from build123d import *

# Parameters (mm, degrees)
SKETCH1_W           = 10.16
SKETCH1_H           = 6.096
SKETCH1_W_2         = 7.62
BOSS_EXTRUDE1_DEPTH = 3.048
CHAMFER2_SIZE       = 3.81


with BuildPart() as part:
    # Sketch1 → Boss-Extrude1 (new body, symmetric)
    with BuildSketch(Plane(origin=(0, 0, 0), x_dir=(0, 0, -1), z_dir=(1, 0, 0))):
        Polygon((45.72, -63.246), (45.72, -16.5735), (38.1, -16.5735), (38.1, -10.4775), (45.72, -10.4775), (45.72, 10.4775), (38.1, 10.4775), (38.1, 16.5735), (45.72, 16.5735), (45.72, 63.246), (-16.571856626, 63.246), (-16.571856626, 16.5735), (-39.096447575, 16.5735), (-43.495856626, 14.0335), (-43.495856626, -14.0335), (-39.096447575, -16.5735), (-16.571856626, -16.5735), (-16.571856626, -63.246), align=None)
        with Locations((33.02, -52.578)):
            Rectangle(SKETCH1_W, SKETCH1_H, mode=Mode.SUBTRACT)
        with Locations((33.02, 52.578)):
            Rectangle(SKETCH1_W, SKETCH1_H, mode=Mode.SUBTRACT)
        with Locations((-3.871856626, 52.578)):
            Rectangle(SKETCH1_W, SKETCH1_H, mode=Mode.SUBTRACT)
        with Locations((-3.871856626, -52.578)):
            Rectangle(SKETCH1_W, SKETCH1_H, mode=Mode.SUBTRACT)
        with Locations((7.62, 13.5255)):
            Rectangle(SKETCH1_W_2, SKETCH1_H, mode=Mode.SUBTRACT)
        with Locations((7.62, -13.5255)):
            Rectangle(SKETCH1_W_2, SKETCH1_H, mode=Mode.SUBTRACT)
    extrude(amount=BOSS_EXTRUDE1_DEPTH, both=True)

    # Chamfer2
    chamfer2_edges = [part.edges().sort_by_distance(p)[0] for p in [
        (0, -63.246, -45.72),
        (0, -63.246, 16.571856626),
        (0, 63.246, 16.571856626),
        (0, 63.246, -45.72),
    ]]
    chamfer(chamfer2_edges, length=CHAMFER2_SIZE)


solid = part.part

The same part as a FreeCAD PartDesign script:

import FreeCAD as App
import Part
import Sketcher

V = App.Vector
Q = App.Units.Quantity


def edges_at(feature, points):
    """Names of the edges that pass closest to the given points."""
    edges = feature.Shape.Edges
    near = lambda p: min(range(len(edges)), key=lambda i: edges[i].distToShape(Part.Vertex(*p))[0])
    return sorted({f"Edge{near(p) + 1}" for p in points})

doc = App.newDocument("Part")
body = doc.addObject("PartDesign::Body", "Body")

# Sketch on YZ plane
sketch1 = body.newObject("Sketcher::SketchObject", "Sketch")
sketch1.AttachmentSupport = (doc.getObject("YZ_Plane"), [""])
sketch1.MapMode = "FlatFace"
sketch1.addGeometry([
    Part.LineSegment(V(-63.246, -45.72, 0), V(-16.5735, -45.72, 0)),  # 0
    Part.LineSegment(V(-16.5735, -45.72, 0), V(-16.5735, -38.1, 0)),  # 1
    Part.LineSegment(V(-16.5735, -38.1, 0), V(-10.4775, -38.1, 0)),  # 2
    Part.LineSegment(V(-10.4775, -38.1, 0), V(-10.4775, -45.72, 0)),  # 3
    Part.LineSegment(V(-10.4775, -45.72, 0), V(10.4775, -45.72, 0)),  # 4
    Part.LineSegment(V(10.4775, -45.72, 0), V(10.4775, -38.1, 0)),  # 5
    Part.LineSegment(V(10.4775, -38.1, 0), V(16.5735, -38.1, 0)),  # 6
    Part.LineSegment(V(16.5735, -38.1, 0), V(16.5735, -45.72, 0)),  # 7
    Part.LineSegment(V(16.5735, -45.72, 0), V(63.246, -45.72, 0)),  # 8
    Part.LineSegment(V(63.246, -45.72, 0), V(63.246, 16.571857, 0)),  # 9
    Part.LineSegment(V(63.246, 16.571857, 0), V(16.5735, 16.571857, 0)),  # 10
    Part.LineSegment(V(16.5735, 16.571857, 0), V(16.5735, 39.096448, 0)),  # 11
    Part.LineSegment(V(16.5735, 39.096448, 0), V(14.0335, 43.495857, 0)),  # 12
    Part.LineSegment(V(14.0335, 43.495857, 0), V(-14.0335, 43.495857, 0)),  # 13
    Part.LineSegment(V(-14.0335, 43.495857, 0), V(-16.5735, 39.096448, 0)),  # 14
    Part.LineSegment(V(-16.5735, 39.096448, 0), V(-16.5735, 16.571857, 0)),  # 15
    Part.LineSegment(V(-16.5735, 16.571857, 0), V(-63.246, 16.571857, 0)),  # 16
    Part.LineSegment(V(-63.246, 16.571857, 0), V(-63.246, -45.72, 0)),  # 17
    Part.LineSegment(V(-55.626, -1.208143, 0), V(-55.626, 8.951857, 0)),  # 18
    Part.LineSegment(V(-55.626, 8.951857, 0), V(-49.53, 8.951857, 0)),  # 19
    Part.LineSegment(V(-49.53, 8.951857, 0), V(-49.53, -1.208143, 0)),  # 20
    Part.LineSegment(V(-49.53, -1.208143, 0), V(-55.626, -1.208143, 0)),  # 21
    Part.LineSegment(V(-16.5735, -11.43, 0), V(-16.5735, -3.81, 0)),  # 22
    Part.LineSegment(V(-16.5735, -3.81, 0), V(-10.4775, -3.81, 0)),  # 23
    Part.LineSegment(V(-10.4775, -3.81, 0), V(-10.4775, -11.43, 0)),  # 24
    Part.LineSegment(V(-10.4775, -11.43, 0), V(-16.5735, -11.43, 0)),  # 25
    Part.LineSegment(V(-55.626, -38.1, 0), V(-55.626, -27.94, 0)),  # 26
    Part.LineSegment(V(-55.626, -27.94, 0), V(-49.53, -27.94, 0)),  # 27
    Part.LineSegment(V(-49.53, -27.94, 0), V(-49.53, -38.1, 0)),  # 28
    Part.LineSegment(V(-49.53, -38.1, 0), V(-55.626, -38.1, 0)),  # 29
    Part.LineSegment(V(10.4775, -11.43, 0), V(10.4775, -3.81, 0)),  # 30
    Part.LineSegment(V(10.4775, -3.81, 0), V(16.5735, -3.81, 0)),  # 31
    Part.LineSegment(V(16.5735, -3.81, 0), V(16.5735, -11.43, 0)),  # 32
    Part.LineSegment(V(16.5735, -11.43, 0), V(10.4775, -11.43, 0)),  # 33
    Part.LineSegment(V(49.53, -1.208143, 0), V(49.53, 8.951857, 0)),  # 34
    Part.LineSegment(V(49.53, 8.951857, 0), V(55.626, 8.951857, 0)),  # 35
    Part.LineSegment(V(55.626, 8.951857, 0), V(55.626, -1.208143, 0)),  # 36
    Part.LineSegment(V(55.626, -1.208143, 0), V(49.53, -1.208143, 0)),  # 37
    Part.LineSegment(V(49.53, -38.1, 0), V(49.53, -27.94, 0)),  # 38
    Part.LineSegment(V(49.53, -27.94, 0), V(55.626, -27.94, 0)),  # 39
    Part.LineSegment(V(55.626, -27.94, 0), V(55.626, -38.1, 0)),  # 40
    Part.LineSegment(V(55.626, -38.1, 0), V(49.53, -38.1, 0)),  # 41
], False)
sketch1.addConstraint([
    Sketcher.Constraint("Coincident", 0, 2, 1, 1),
    Sketcher.Constraint("Coincident", 1, 2, 2, 1),
    Sketcher.Constraint("Coincident", 2, 2, 3, 1),
    Sketcher.Constraint("Coincident", 3, 2, 4, 1),
    Sketcher.Constraint("Coincident", 4, 2, 5, 1),
    Sketcher.Constraint("Coincident", 5, 2, 6, 1),
    Sketcher.Constraint("Coincident", 6, 2, 7, 1),
    Sketcher.Constraint("Coincident", 7, 2, 8, 1),
    Sketcher.Constraint("Coincident", 8, 2, 9, 1),
    Sketcher.Constraint("Coincident", 9, 2, 10, 1),
    Sketcher.Constraint("Coincident", 10, 2, 11, 1),
    Sketcher.Constraint("Coincident", 11, 2, 12, 1),
    Sketcher.Constraint("Coincident", 12, 2, 13, 1),
    Sketcher.Constraint("Coincident", 13, 2, 14, 1),
    Sketcher.Constraint("Coincident", 14, 2, 15, 1),
    Sketcher.Constraint("Coincident", 15, 2, 16, 1),
    Sketcher.Constraint("Coincident", 16, 2, 17, 1),
    Sketcher.Constraint("Coincident", 17, 2, 0, 1),
    Sketcher.Constraint("Coincident", 18, 2, 19, 1),
    Sketcher.Constraint("Coincident", 19, 2, 20, 1),
    Sketcher.Constraint("Coincident", 20, 2, 21, 1),
    Sketcher.Constraint("Coincident", 21, 2, 18, 1),
    Sketcher.Constraint("Coincident", 22, 2, 23, 1),
    Sketcher.Constraint("Coincident", 23, 2, 24, 1),
    Sketcher.Constraint("Coincident", 24, 2, 25, 1),
    Sketcher.Constraint("Coincident", 25, 2, 22, 1),
    Sketcher.Constraint("Coincident", 26, 2, 27, 1),
    Sketcher.Constraint("Coincident", 27, 2, 28, 1),
    Sketcher.Constraint("Coincident", 28, 2, 29, 1),
    Sketcher.Constraint("Coincident", 29, 2, 26, 1),
    Sketcher.Constraint("Coincident", 30, 2, 31, 1),
    Sketcher.Constraint("Coincident", 31, 2, 32, 1),
    Sketcher.Constraint("Coincident", 32, 2, 33, 1),
    Sketcher.Constraint("Coincident", 33, 2, 30, 1),
    Sketcher.Constraint("Coincident", 34, 2, 35, 1),
    Sketcher.Constraint("Coincident", 35, 2, 36, 1),
    Sketcher.Constraint("Coincident", 36, 2, 37, 1),
    Sketcher.Constraint("Coincident", 37, 2, 34, 1),
    Sketcher.Constraint("Coincident", 38, 2, 39, 1),
    Sketcher.Constraint("Coincident", 39, 2, 40, 1),
    Sketcher.Constraint("Coincident", 40, 2, 41, 1),
    Sketcher.Constraint("Coincident", 41, 2, 38, 1),
    Sketcher.Constraint("Horizontal", 0),
    Sketcher.Constraint("Vertical", 1),
    Sketcher.Constraint("Horizontal", 2),
    Sketcher.Constraint("Vertical", 3),
    Sketcher.Constraint("Horizontal", 4),
    Sketcher.Constraint("Vertical", 5),
    Sketcher.Constraint("Horizontal", 6),
    Sketcher.Constraint("Vertical", 7),
    Sketcher.Constraint("Horizontal", 8),
    Sketcher.Constraint("Vertical", 9),
    Sketcher.Constraint("Horizontal", 10),
    Sketcher.Constraint("Vertical", 11),
    Sketcher.Constraint("Horizontal", 13),
    Sketcher.Constraint("Vertical", 15),
    Sketcher.Constraint("Horizontal", 16),
    Sketcher.Constraint("Vertical", 17),
    Sketcher.Constraint("Vertical", 18),
    Sketcher.Constraint("Horizontal", 19),
    Sketcher.Constraint("Vertical", 20),
    Sketcher.Constraint("Horizontal", 21),
    Sketcher.Constraint("Vertical", 22),
    Sketcher.Constraint("Horizontal", 23),
    Sketcher.Constraint("Vertical", 24),
    Sketcher.Constraint("Horizontal", 25),
    Sketcher.Constraint("Vertical", 26),
    Sketcher.Constraint("Horizontal", 27),
    Sketcher.Constraint("Vertical", 28),
    Sketcher.Constraint("Horizontal", 29),
    Sketcher.Constraint("Vertical", 30),
    Sketcher.Constraint("Horizontal", 31),
    Sketcher.Constraint("Vertical", 32),
    Sketcher.Constraint("Horizontal", 33),
    Sketcher.Constraint("Vertical", 34),
    Sketcher.Constraint("Horizontal", 35),
    Sketcher.Constraint("Vertical", 36),
    Sketcher.Constraint("Horizontal", 37),
    Sketcher.Constraint("Vertical", 38),
    Sketcher.Constraint("Horizontal", 39),
    Sketcher.Constraint("Vertical", 40),
    Sketcher.Constraint("Horizontal", 41),
    Sketcher.Constraint("Symmetric", 2, 2, 5, 2, -2),
    Sketcher.Constraint("Symmetric", 0, 2, 7, 2, -2),
    Sketcher.Constraint("Symmetric", 11, 2, 14, 2, -2),
    Sketcher.Constraint("Symmetric", 9, 2, 16, 2, -2),
    Sketcher.Constraint("Symmetric", 23, 2, 30, 2, -2),
    Sketcher.Constraint("Symmetric", 25, 2, 32, 2, -2),
    Sketcher.Constraint("Symmetric", 19, 2, 34, 2, -2),
    Sketcher.Constraint("Symmetric", 21, 2, 36, 2, -2),
    Sketcher.Constraint("Symmetric", 27, 2, 38, 2, -2),
    Sketcher.Constraint("Symmetric", 29, 2, 40, 2, -2),
    Sketcher.Constraint("Horizontal", 0, 2, 3, 2),
    Sketcher.Constraint("Horizontal", 6, 2, 28, 2),
    Sketcher.Constraint("Vertical", 7, 2, 10, 2),
    Sketcher.Constraint("Vertical", 15, 2, 22, 2),
    Sketcher.Constraint("Vertical", 3, 2, 23, 2),
    Sketcher.Constraint("Vertical", 21, 2, 26, 2),
    Sketcher.Constraint("Vertical", 20, 2, 27, 2),
    Sketcher.Constraint("Equal", 6, 19),
    Sketcher.Constraint("Equal", 7, 22),
    Sketcher.Constraint("Equal", 20, 26),
    Sketcher.Constraint("Equal", 12, 14),
    Sketcher.Constraint("DistanceY", 1, 1, 1, 2, Q("0.3 in")),
    Sketcher.Constraint("DistanceY", 18, 1, 18, 2, Q("0.4 in")),
    Sketcher.Constraint("Angle", 12, Q("120 deg")),
    Sketcher.Constraint("Distance", 12, Q("0.2 in")),
    Sketcher.Constraint("DistanceX", 2, 1, 2, 2, Q("0.24 in")),
    Sketcher.Constraint("DistanceY", 0, 2, -1, 1, Q("1.8 in")),
    Sketcher.Constraint("DistanceX", 16, 2, 18, 2, Q("0.3 in")),
    Sketcher.Constraint("DistanceY", 18, 2, 16, 2, Q("0.3 in")),
    Sketcher.Constraint("DistanceX", 4, 1, 4, 2, Q("0.825 in")),
    Sketcher.Constraint("DistanceX", -1, 1, 8, 2, Q("2.49 in")),
    Sketcher.Constraint("DistanceY", 22, 2, -1, 1, Q("0.15 in")),
    Sketcher.Constraint("DistanceY", 10, 2, 12, 2, Q("1.06 in")),
    Sketcher.Constraint("DistanceY", 9, 1, 9, 2, 62.291857),
])
pad1 = body.newObject("PartDesign::Pad", "Pad")
pad1.Profile = sketch1
pad1.Length = Q("0.24 in")
pad1.Midplane = True
doc.recompute()

chamfer = body.newObject("PartDesign::Chamfer", "Chamfer")
chamfer.Base = (pad1, edges_at(pad1, [
    (0, -63.246, -45.72),
    (0, -63.246, 16.572),
    (0, 63.246, 16.572),
    (0, 63.246, -45.72),
]))
chamfer.Size = Q("0.15 in")

doc.recompute()
